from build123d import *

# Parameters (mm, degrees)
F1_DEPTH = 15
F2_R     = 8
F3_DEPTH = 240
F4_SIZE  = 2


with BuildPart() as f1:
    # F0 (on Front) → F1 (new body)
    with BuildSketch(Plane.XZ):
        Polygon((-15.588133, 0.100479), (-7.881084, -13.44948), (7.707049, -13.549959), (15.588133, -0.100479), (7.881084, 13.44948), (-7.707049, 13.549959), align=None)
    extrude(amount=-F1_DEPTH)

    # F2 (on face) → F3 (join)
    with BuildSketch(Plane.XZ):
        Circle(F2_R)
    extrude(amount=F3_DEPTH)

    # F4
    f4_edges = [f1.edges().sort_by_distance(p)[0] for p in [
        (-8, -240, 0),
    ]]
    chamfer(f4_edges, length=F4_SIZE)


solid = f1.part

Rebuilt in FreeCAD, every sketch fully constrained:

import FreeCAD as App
import Part
import Sketcher
from FreeCAD import Vector


def edges_at(feature, points):
    """Names of the edges that pass closest to the given points."""
    edges = feature.Shape.Edges
    near = lambda p: min(range(len(edges)), key=lambda i: edges[i].distToShape(Part.Vertex(*p))[0])
    return sorted({f"Edge{near(p) + 1}" for p in points})

doc = App.newDocument("Part")
params = doc.addObject("Spreadsheet::Sheet", "Params")
for row, (alias, value) in enumerate([
    ("pad1_length", "15 mm"),
    ("sketch2_diameter", "16 mm"),
    ("pad2_length", "240 mm"),
    ("chamfer_size", "2 mm"),
], start=1):
    params.set(f"A{row}", alias)
    params.set(f"B{row}", "=" + value)
    params.setAlias(f"B{row}", alias)

body = doc.addObject("PartDesign::Body", "Body")

sketch1 = doc.addObject("Sketcher::SketchObject", "Sketch")
body.addObject(sketch1)
sketch1.AttachmentSupport = (doc.XZ_Plane, [""])
sketch1.MapMode = "FlatFace"
sketch1.addGeometry([
    Part.LineSegment(Vector(-15.588133, 0.100479, 0), Vector(-7.881084, -13.44948, 0)),
    Part.LineSegment(Vector(-7.881084, -13.44948, 0), Vector(7.707049, -13.549959, 0)),
    Part.LineSegment(Vector(7.707049, -13.549959, 0), Vector(15.588133, -0.100479, 0)),
    Part.LineSegment(Vector(15.588133, -0.100479, 0), Vector(7.881084, 13.44948, 0)),
    Part.LineSegment(Vector(7.881084, 13.44948, 0), Vector(-7.707049, 13.549959, 0)),
    Part.LineSegment(Vector(-7.707049, 13.549959, 0), Vector(-15.588133, 0.100479, 0)),
], False)
sketch1.addConstraint([
    Sketcher.Constraint("Coincident", 0, 2, 1, 1),
    Sketcher.Constraint("Coincident", 1, 2, 2, 1),
    Sketcher.Constraint("Coincident", 2, 2, 3, 1),
    Sketcher.Constraint("Coincident", 3, 2, 4, 1),
    Sketcher.Constraint("Coincident", 4, 2, 5, 1),
    Sketcher.Constraint("Coincident", 5, 2, 0, 1),
    Sketcher.Constraint("Symmetric", 0, 2, 3, 2, -1, 1),
    Sketcher.Constraint("Symmetric", 1, 2, 4, 2, -1, 1),
    Sketcher.Constraint("Symmetric", 2, 2, 5, 2, -1, 1),
    Sketcher.Constraint("Equal", 0, 1),
    Sketcher.Constraint("Equal", 1, 2),
    Sketcher.Constraint("DistanceY", 0, 2, 2, 2, 13.349001),
    Sketcher.Constraint("DistanceY", 0, 2, -1, 1, 13.44948),
    Sketcher.Constraint("DistanceX", -1, 1, 1, 2, 7.707049),
    Sketcher.Constraint("DistanceY", 1, 2, -1, 1, 13.549959),
])
pad1 = doc.addObject("PartDesign::Pad", "Pad")
body.addObject(pad1)
pad1.Profile = sketch1
pad1.setExpression("Length", "Params.pad1_length")
pad1.Reversed = True

sketch2 = doc.addObject("Sketcher::SketchObject", "Sketch001")
body.addObject(sketch2)
sketch2.AttachmentSupport = (doc.XZ_Plane, [""])
sketch2.MapMode = "FlatFace"
sketch2.addGeometry(Part.Circle(Vector(0, 0, 0), Vector(0, 0, 1), 8), False)
sketch2.addConstraint([
    Sketcher.Constraint("Coincident", 0, 3, -1, 1),
    Sketcher.Constraint("Diameter", 0, 16.0),
])
sketch2.setExpression("Constraints[1]", "Params.sketch2_diameter")
pad2 = doc.addObject("PartDesign::Pad", "Pad001")
body.addObject(pad2)
pad2.Profile = sketch2
pad2.setExpression("Length", "Params.pad2_length")
doc.recompute()

chamfer = doc.addObject("PartDesign::Chamfer", "Chamfer")
body.addObject(chamfer)
chamfer.Base = (pad2, edges_at(pad2, [(-8, -240, 0)]))
chamfer.setExpression("Size", "Params.chamfer_size")

doc.recompute()
